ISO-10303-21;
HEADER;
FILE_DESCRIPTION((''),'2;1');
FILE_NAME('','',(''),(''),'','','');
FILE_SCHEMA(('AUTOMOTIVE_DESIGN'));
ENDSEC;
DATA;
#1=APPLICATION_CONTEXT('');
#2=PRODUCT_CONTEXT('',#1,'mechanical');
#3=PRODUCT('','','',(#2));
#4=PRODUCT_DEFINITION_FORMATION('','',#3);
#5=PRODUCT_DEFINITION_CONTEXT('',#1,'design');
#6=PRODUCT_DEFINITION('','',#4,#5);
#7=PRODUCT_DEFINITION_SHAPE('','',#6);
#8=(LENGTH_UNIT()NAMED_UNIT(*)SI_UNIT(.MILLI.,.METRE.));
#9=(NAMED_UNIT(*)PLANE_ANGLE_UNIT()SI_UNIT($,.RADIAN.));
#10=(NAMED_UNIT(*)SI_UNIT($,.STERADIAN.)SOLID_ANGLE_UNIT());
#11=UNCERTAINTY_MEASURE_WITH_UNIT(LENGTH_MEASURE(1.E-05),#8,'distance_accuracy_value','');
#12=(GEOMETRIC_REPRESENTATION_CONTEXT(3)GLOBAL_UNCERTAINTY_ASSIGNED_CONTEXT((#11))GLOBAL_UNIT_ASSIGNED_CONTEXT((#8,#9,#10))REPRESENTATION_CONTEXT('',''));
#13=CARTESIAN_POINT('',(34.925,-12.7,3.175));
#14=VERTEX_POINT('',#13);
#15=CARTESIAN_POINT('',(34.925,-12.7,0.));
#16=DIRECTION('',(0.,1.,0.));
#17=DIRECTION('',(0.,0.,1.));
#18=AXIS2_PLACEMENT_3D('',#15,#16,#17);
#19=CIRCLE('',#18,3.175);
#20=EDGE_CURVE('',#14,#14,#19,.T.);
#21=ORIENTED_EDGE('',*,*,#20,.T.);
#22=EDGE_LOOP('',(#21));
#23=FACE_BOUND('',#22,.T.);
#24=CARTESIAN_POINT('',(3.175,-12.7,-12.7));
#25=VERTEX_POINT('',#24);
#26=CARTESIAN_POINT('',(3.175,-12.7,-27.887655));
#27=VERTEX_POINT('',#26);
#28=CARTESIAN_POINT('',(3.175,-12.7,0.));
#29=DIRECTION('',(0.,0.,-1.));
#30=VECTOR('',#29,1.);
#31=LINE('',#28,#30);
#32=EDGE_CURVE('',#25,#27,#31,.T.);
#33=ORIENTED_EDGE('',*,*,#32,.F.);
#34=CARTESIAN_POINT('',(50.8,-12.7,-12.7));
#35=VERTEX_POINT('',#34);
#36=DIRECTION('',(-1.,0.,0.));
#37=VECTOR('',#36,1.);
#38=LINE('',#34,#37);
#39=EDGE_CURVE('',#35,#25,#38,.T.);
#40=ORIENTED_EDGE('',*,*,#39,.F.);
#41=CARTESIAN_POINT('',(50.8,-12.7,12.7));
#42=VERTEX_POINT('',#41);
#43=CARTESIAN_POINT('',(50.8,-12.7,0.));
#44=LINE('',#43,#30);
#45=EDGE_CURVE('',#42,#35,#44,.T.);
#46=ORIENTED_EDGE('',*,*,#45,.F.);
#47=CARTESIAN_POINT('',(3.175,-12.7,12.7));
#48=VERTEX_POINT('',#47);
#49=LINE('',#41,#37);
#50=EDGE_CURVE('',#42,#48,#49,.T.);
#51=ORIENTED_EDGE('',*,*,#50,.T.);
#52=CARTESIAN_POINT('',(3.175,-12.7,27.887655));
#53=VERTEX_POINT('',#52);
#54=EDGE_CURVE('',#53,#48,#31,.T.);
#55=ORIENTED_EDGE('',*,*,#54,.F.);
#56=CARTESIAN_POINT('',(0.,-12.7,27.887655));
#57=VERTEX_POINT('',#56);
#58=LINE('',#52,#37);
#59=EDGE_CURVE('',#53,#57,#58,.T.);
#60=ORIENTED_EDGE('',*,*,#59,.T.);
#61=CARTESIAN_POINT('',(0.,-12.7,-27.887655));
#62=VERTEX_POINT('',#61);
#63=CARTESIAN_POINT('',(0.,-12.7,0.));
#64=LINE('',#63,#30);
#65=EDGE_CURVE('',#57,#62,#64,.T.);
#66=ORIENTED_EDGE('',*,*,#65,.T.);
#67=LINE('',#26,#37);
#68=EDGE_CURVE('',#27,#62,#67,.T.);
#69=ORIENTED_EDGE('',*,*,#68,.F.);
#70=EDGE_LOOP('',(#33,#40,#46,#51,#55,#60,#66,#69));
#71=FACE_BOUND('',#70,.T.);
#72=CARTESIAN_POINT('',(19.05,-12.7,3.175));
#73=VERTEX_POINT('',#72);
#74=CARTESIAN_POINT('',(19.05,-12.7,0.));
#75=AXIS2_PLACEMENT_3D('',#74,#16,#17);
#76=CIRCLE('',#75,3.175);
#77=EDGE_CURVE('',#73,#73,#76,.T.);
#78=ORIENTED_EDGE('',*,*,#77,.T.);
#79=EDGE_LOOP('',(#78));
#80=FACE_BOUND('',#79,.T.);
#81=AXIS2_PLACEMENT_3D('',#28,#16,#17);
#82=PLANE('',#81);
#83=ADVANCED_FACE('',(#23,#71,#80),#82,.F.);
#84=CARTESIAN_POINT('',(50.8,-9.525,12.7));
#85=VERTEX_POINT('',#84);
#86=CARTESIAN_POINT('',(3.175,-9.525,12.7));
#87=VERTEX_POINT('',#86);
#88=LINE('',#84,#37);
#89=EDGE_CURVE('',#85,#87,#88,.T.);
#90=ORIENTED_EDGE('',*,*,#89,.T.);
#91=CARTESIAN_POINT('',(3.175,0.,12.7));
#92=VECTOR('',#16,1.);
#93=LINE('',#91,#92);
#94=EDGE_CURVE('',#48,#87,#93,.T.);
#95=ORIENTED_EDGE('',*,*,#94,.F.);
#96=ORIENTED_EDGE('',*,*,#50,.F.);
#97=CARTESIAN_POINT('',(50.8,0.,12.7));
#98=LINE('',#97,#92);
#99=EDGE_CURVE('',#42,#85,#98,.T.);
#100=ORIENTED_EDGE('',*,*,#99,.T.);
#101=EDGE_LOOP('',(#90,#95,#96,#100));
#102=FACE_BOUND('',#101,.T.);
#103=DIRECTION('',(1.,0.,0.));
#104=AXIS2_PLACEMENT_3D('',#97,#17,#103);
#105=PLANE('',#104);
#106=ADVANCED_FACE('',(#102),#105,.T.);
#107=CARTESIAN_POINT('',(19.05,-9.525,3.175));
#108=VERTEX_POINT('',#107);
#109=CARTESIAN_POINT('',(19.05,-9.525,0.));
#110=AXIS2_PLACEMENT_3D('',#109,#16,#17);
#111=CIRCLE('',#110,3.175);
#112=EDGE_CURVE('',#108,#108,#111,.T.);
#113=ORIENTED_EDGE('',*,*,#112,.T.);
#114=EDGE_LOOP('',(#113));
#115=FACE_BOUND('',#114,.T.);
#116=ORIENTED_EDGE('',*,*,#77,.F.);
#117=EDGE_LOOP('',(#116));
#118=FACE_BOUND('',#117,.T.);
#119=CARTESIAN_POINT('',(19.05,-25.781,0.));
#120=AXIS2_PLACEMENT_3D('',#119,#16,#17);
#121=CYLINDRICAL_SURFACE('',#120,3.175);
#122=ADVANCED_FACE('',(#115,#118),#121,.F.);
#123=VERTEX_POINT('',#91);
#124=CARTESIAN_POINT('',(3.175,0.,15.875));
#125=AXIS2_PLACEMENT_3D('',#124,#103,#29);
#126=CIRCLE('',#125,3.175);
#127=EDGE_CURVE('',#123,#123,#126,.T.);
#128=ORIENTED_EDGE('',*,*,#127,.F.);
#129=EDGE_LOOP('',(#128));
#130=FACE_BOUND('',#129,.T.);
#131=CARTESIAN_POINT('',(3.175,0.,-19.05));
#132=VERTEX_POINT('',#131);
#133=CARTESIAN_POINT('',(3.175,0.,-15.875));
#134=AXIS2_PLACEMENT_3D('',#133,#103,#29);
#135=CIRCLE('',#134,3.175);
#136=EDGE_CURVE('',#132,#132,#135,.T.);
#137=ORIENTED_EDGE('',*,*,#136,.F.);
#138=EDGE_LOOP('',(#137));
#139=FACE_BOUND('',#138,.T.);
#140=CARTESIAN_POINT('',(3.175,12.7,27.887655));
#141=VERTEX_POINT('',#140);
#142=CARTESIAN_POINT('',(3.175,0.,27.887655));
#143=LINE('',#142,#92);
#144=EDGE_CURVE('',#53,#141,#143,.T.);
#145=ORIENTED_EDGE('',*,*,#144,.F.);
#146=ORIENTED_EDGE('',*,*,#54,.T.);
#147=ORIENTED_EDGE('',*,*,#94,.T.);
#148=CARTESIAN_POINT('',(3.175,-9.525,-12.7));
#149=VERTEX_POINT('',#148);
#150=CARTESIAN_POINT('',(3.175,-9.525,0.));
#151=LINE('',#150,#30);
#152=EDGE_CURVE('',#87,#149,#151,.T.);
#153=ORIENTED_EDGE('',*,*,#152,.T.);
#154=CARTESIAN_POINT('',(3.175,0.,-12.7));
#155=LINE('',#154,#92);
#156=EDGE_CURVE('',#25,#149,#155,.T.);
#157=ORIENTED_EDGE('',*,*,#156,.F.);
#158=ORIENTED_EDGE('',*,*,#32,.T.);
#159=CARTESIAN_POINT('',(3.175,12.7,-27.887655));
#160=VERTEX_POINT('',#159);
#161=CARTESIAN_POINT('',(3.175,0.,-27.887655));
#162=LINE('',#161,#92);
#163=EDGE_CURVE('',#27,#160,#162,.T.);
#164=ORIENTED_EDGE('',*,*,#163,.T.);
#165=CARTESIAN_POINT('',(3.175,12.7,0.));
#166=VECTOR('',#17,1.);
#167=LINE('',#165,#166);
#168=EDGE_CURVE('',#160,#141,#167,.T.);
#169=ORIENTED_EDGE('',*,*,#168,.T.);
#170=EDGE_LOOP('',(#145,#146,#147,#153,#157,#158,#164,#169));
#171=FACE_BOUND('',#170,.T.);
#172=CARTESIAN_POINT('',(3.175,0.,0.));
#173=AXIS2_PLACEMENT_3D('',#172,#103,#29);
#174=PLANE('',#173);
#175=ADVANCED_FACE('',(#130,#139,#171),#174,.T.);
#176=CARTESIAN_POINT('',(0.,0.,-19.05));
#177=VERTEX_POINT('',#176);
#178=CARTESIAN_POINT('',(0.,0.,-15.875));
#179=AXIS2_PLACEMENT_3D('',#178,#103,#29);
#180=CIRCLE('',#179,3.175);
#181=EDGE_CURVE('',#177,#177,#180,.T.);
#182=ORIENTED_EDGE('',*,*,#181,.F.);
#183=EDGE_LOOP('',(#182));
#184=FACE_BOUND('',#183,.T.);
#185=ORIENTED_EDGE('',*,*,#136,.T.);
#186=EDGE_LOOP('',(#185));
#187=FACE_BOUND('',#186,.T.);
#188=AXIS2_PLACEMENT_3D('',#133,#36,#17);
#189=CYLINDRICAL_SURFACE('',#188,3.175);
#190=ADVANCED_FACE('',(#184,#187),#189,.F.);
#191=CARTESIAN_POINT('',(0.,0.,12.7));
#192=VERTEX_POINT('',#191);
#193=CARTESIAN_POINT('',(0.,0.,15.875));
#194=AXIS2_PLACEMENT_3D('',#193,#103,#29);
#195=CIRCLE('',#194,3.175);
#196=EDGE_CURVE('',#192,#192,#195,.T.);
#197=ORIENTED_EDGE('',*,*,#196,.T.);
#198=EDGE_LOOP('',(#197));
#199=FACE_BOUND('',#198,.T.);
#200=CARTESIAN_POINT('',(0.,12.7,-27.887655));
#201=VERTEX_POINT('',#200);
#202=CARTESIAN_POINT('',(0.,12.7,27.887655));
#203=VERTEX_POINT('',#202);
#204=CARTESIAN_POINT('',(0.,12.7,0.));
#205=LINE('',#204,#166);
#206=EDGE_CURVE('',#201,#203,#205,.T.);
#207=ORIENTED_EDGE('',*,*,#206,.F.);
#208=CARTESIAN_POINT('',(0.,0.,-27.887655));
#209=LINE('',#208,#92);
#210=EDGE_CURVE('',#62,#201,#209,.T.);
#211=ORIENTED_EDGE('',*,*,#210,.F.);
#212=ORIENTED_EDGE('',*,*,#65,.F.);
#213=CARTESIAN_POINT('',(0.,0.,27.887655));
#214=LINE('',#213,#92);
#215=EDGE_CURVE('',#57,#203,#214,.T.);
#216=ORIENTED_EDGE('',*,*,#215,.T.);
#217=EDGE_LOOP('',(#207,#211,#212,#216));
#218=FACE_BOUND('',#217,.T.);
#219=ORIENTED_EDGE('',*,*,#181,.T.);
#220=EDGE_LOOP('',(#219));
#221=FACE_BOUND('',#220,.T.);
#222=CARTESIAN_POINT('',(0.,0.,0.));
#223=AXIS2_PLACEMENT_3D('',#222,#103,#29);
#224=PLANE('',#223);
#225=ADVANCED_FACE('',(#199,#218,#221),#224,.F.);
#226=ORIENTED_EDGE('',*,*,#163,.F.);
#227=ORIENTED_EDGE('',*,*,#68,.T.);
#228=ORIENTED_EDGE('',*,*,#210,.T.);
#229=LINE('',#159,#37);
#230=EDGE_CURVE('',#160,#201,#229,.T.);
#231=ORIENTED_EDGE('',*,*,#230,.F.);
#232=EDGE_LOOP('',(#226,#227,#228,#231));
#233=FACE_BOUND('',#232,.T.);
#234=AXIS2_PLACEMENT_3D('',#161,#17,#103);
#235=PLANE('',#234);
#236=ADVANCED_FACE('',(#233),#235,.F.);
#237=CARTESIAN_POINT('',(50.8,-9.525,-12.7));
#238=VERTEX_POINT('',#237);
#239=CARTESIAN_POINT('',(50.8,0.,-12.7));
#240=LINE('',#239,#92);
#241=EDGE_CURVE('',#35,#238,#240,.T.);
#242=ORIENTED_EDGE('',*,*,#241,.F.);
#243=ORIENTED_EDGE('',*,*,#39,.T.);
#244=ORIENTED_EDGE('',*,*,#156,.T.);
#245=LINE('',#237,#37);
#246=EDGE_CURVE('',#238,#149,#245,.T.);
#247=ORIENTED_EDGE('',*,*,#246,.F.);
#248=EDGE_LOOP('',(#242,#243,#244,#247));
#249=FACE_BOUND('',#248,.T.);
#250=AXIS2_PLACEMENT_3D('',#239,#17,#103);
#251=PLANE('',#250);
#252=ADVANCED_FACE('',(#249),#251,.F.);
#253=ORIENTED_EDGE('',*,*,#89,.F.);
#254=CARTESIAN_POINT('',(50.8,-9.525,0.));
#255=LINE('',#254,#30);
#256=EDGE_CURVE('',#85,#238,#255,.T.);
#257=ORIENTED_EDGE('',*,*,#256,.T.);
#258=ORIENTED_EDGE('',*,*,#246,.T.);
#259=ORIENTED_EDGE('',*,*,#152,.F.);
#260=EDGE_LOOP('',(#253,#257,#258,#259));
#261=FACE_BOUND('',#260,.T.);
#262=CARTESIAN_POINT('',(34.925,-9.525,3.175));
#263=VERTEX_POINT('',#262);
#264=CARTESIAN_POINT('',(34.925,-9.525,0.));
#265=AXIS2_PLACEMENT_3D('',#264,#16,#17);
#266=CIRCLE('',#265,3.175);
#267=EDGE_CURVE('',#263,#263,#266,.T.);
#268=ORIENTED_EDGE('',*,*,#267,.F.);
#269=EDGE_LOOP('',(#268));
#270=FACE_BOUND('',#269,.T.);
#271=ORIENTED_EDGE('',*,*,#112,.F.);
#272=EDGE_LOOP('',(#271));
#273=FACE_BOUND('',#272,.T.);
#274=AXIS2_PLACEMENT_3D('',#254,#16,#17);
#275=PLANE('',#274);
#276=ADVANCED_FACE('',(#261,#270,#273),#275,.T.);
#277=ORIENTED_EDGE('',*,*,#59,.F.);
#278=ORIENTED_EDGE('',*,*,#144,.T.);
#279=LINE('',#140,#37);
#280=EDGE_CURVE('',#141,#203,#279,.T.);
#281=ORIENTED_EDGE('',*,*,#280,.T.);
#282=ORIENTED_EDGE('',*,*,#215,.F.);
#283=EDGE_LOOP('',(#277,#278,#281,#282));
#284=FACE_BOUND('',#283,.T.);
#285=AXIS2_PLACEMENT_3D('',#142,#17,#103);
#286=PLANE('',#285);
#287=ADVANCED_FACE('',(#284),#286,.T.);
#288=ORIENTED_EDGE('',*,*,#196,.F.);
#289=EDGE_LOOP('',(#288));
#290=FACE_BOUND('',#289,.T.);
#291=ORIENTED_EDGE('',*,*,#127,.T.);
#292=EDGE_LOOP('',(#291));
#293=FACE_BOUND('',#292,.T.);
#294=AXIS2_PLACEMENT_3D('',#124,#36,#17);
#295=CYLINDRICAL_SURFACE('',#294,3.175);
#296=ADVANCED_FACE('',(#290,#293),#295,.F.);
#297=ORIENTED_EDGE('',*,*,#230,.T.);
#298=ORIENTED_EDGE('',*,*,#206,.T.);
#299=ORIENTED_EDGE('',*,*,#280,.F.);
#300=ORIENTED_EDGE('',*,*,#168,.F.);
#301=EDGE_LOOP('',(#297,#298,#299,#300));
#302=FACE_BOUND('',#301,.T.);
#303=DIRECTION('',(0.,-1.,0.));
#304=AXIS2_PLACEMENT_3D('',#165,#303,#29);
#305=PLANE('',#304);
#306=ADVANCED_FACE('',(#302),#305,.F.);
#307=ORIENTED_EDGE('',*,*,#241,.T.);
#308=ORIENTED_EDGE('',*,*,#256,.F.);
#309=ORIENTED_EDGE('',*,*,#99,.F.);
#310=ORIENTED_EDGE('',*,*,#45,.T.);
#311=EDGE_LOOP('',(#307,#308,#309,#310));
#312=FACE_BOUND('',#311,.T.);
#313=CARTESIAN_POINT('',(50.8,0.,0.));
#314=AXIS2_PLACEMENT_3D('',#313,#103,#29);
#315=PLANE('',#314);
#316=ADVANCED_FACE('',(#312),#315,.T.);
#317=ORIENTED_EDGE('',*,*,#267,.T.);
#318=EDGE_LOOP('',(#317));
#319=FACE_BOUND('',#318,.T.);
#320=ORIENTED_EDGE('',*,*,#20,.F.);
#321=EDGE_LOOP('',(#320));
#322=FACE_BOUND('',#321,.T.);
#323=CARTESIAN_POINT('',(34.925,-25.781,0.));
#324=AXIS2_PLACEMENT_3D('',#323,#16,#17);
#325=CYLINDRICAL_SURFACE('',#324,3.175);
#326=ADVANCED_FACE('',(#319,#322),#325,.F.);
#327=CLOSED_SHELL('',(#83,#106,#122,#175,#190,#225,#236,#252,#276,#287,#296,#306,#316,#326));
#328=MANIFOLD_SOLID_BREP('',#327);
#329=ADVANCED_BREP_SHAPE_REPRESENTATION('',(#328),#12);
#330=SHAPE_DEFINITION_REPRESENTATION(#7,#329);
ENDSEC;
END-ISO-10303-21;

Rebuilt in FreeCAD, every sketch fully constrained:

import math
import FreeCAD as App
import Part
import Sketcher
from FreeCAD import Vector
Q = App.Units.Quantity


def add_polygon(sketch, points):
    """Adds a closed chain of lines whose ends are joined by coincident constraints."""
    first, n = sketch.GeometryCount, len(points)
    for a, b in zip(points, points[1:] + points[:1]):
        sketch.addGeometry(Part.LineSegment(App.Vector(*a, 0), App.Vector(*b, 0)), False)
    for i in range(n):
        sketch.addConstraint(Sketcher.Constraint("Coincident", first + i, 2, first + (i + 1) % n, 1))

doc = App.newDocument("Part")
params = doc.addObject("Spreadsheet::Sheet", "Params")
for row, (alias, value) in enumerate([
    ("sketch1_width", "1 in"),
    ("sketch1_radius", "0.125 in"),
    ("pad1_length", "0.125 in"),
    ("sketch2_height", "1 in"),
    ("sketch2_width", "0.125 in"),
    ("pad2_length", "1.875 in"),
    ("sketch3_diameter", "0.25 in"),
    ("pocket1_length", "0.64 in"),
], start=1):
    params.set(f"A{row}", alias)
    params.set(f"B{row}", "=" + value)
    params.setAlias(f"B{row}", alias)

body = doc.addObject("PartDesign::Body", "Body")

# Sketch on YZ plane
sketch1 = body.newObject("Sketcher::SketchObject", "Sketch")
sketch1.AttachmentSupport = (doc.getObject("YZ_Plane"), [""])
sketch1.MapMode = "FlatFace"
add_polygon(sketch1, [(12.7, 27.9), (-12.7, 27.9), (-12.7, -27.9), (12.7, -27.9)])  # lines 0-3
sketch1.addGeometry(Part.ArcOfCircle(Part.Circle(Vector(0, 15.9, 0), Vector(0, 0, 1), 3.2), math.radians(-90), math.radians(180)), False)  # 4
sketch1.addGeometry(Part.ArcOfCircle(Part.Circle(Vector(0, 15.9, 0), Vector(0, 0, 1), 3.2), math.radians(-180), math.radians(-90)), False)  # 5
sketch1.addGeometry(Part.ArcOfCircle(Part.Circle(Vector(0, -15.9, 0), Vector(0, 0, 1), 3.2), math.radians(0), math.radians(90)), False)  # 6
sketch1.addGeometry(Part.ArcOfCircle(Part.Circle(Vector(0, -15.9, 0), Vector(0, 0, 1), 3.2), math.radians(-90), math.radians(0)), False)  # 7
sketch1.addGeometry(Part.ArcOfCircle(Part.Circle(Vector(0, -15.9, 0), Vector(0, 0, 1), 3.2), math.radians(90), math.radians(270)), False)  # 8
sketch1.addConstraint([
    Sketcher.Constraint("Tangent", 4, 1, 5, 2),
    Sketcher.Constraint("Coincident", 5, 1, 4, 2),
    Sketcher.Constraint("Tangent", 6, 1, 7, 2),
    Sketcher.Constraint("Tangent", 7, 1, 8, 2),
    Sketcher.Constraint("Tangent", 8, 1, 6, 2),
    Sketcher.Constraint("Horizontal", 0),
    Sketcher.Constraint("Vertical", 1),
    Sketcher.Constraint("Horizontal", 2),
    Sketcher.Constraint("Vertical", 3),
    Sketcher.Constraint("Equal", 5, 6),
    Sketcher.Constraint("Symmetric", 4, 3, 6, 3, -1, 1),
    Sketcher.Constraint("Symmetric", 0, 2, 2, 2, -1, 1),
    Sketcher.Constraint("PointOnObject", 4, 3, -2),
    Sketcher.Constraint("PointOnObject", 4, 1, -2),
    Sketcher.Constraint("PointOnObject", 7, 1, -2),
    Sketcher.Constraint("PointOnObject", 8, 1, -2),
    Sketcher.Constraint("Horizontal", 4, 3, 5, 1),
    Sketcher.Constraint("Horizontal", 8, 3, 6, 1),
    Sketcher.Constraint("DistanceX", 0, 2, 0, 1, Q("1 in")),
    Sketcher.Constraint("Radius", 4, Q("0.125 in")),
    Sketcher.Constraint("DistanceY", -1, 1, 4, 1, Q("0.5 in")),
    Sketcher.Constraint("DistanceY", 1, 2, 1, 1, 55.77531),
])
sketch1.setExpression("Constraints[22]", "Params.sketch1_width")
sketch1.setExpression("Constraints[23]", "Params.sketch1_radius")
pad1 = body.newObject("PartDesign::Pad", "Pad")
pad1.Profile = sketch1
pad1.setExpression("Length", "Params.pad1_length")

# Sketch on YZ plane
sketch2 = body.newObject("Sketcher::SketchObject", "Sketch001")
sketch2.AttachmentSupport = (doc.getObject("YZ_Plane"), [""])
sketch2.MapMode = "FlatFace"
sketch2.AttachmentOffset = App.Placement(Vector(0, 0, 0.125 * 25.4), App.Rotation())
add_polygon(sketch2, [(-9.5, 12.7), (-12.7, 12.7), (-12.7, -12.7), (-9.5, -12.7)])  # lines 0-3
sketch2.addConstraint([
    Sketcher.Constraint("Horizontal", 0),
    Sketcher.Constraint("Vertical", 1),
    Sketcher.Constraint("Horizontal", 2),
    Sketcher.Constraint("Vertical", 3),
    Sketcher.Constraint("DistanceY", 1, 2, 1, 1, Q("1 in")),
    Sketcher.Constraint("DistanceX", 0, 2, -1, 1, Q("0.5 in")),
    Sketcher.Constraint("DistanceY", -1, 1, 0, 2, Q("0.5 in")),
    Sketcher.Constraint("DistanceX", 0, 2, 0, 1, Q("0.125 in")),
])
sketch2.setExpression("Constraints[8]", "Params.sketch2_height")
sketch2.setExpression("Constraints[11]", "Params.sketch2_width")
pad2 = body.newObject("PartDesign::Pad", "Pad001")
pad2.Profile = sketch2
pad2.setExpression("Length", "Params.pad2_length")

# Sketch on XZ plane
sketch3 = body.newObject("Sketcher::SketchObject", "Sketch002")
sketch3.AttachmentSupport = (doc.getObject("XZ_Plane"), [""])
sketch3.MapMode = "FlatFace"
sketch3.AttachmentOffset = App.Placement(Vector(0, 0, 0.375 * 25.4), App.Rotation())
sketch3.addGeometry([
    Part.Circle(Vector(19.1, 0, 0), Vector(0, 0, 1), 3.2),
    Part.Circle(Vector(34.9, 0, 0), Vector(0, 0, 1), 3.2),
], False)
sketch3.addConstraint([
    Sketcher.Constraint("Equal", 0, 1),
    Sketcher.Constraint("PointOnObject", 0, 3, -1),
    Sketcher.Constraint("PointOnObject", 1, 3, -1),
    Sketcher.Constraint("Diameter", 0, Q("0.25 in")),
    Sketcher.Constraint("DistanceX", -1, 1, 0, 3, Q("0.75 in")),
    Sketcher.Constraint("DistanceX", -1, 1, 1, 3, Q("1.375 in")),
])
sketch3.setExpression("Constraints[3]", "Params.sketch3_diameter")
pocket1 = body.newObject("PartDesign::Pocket", "Pocket")
pocket1.Profile = sketch3
pocket1.setExpression("Length", "Params.pocket1_length")
pocket1.Reversed = True

doc.recompute()
